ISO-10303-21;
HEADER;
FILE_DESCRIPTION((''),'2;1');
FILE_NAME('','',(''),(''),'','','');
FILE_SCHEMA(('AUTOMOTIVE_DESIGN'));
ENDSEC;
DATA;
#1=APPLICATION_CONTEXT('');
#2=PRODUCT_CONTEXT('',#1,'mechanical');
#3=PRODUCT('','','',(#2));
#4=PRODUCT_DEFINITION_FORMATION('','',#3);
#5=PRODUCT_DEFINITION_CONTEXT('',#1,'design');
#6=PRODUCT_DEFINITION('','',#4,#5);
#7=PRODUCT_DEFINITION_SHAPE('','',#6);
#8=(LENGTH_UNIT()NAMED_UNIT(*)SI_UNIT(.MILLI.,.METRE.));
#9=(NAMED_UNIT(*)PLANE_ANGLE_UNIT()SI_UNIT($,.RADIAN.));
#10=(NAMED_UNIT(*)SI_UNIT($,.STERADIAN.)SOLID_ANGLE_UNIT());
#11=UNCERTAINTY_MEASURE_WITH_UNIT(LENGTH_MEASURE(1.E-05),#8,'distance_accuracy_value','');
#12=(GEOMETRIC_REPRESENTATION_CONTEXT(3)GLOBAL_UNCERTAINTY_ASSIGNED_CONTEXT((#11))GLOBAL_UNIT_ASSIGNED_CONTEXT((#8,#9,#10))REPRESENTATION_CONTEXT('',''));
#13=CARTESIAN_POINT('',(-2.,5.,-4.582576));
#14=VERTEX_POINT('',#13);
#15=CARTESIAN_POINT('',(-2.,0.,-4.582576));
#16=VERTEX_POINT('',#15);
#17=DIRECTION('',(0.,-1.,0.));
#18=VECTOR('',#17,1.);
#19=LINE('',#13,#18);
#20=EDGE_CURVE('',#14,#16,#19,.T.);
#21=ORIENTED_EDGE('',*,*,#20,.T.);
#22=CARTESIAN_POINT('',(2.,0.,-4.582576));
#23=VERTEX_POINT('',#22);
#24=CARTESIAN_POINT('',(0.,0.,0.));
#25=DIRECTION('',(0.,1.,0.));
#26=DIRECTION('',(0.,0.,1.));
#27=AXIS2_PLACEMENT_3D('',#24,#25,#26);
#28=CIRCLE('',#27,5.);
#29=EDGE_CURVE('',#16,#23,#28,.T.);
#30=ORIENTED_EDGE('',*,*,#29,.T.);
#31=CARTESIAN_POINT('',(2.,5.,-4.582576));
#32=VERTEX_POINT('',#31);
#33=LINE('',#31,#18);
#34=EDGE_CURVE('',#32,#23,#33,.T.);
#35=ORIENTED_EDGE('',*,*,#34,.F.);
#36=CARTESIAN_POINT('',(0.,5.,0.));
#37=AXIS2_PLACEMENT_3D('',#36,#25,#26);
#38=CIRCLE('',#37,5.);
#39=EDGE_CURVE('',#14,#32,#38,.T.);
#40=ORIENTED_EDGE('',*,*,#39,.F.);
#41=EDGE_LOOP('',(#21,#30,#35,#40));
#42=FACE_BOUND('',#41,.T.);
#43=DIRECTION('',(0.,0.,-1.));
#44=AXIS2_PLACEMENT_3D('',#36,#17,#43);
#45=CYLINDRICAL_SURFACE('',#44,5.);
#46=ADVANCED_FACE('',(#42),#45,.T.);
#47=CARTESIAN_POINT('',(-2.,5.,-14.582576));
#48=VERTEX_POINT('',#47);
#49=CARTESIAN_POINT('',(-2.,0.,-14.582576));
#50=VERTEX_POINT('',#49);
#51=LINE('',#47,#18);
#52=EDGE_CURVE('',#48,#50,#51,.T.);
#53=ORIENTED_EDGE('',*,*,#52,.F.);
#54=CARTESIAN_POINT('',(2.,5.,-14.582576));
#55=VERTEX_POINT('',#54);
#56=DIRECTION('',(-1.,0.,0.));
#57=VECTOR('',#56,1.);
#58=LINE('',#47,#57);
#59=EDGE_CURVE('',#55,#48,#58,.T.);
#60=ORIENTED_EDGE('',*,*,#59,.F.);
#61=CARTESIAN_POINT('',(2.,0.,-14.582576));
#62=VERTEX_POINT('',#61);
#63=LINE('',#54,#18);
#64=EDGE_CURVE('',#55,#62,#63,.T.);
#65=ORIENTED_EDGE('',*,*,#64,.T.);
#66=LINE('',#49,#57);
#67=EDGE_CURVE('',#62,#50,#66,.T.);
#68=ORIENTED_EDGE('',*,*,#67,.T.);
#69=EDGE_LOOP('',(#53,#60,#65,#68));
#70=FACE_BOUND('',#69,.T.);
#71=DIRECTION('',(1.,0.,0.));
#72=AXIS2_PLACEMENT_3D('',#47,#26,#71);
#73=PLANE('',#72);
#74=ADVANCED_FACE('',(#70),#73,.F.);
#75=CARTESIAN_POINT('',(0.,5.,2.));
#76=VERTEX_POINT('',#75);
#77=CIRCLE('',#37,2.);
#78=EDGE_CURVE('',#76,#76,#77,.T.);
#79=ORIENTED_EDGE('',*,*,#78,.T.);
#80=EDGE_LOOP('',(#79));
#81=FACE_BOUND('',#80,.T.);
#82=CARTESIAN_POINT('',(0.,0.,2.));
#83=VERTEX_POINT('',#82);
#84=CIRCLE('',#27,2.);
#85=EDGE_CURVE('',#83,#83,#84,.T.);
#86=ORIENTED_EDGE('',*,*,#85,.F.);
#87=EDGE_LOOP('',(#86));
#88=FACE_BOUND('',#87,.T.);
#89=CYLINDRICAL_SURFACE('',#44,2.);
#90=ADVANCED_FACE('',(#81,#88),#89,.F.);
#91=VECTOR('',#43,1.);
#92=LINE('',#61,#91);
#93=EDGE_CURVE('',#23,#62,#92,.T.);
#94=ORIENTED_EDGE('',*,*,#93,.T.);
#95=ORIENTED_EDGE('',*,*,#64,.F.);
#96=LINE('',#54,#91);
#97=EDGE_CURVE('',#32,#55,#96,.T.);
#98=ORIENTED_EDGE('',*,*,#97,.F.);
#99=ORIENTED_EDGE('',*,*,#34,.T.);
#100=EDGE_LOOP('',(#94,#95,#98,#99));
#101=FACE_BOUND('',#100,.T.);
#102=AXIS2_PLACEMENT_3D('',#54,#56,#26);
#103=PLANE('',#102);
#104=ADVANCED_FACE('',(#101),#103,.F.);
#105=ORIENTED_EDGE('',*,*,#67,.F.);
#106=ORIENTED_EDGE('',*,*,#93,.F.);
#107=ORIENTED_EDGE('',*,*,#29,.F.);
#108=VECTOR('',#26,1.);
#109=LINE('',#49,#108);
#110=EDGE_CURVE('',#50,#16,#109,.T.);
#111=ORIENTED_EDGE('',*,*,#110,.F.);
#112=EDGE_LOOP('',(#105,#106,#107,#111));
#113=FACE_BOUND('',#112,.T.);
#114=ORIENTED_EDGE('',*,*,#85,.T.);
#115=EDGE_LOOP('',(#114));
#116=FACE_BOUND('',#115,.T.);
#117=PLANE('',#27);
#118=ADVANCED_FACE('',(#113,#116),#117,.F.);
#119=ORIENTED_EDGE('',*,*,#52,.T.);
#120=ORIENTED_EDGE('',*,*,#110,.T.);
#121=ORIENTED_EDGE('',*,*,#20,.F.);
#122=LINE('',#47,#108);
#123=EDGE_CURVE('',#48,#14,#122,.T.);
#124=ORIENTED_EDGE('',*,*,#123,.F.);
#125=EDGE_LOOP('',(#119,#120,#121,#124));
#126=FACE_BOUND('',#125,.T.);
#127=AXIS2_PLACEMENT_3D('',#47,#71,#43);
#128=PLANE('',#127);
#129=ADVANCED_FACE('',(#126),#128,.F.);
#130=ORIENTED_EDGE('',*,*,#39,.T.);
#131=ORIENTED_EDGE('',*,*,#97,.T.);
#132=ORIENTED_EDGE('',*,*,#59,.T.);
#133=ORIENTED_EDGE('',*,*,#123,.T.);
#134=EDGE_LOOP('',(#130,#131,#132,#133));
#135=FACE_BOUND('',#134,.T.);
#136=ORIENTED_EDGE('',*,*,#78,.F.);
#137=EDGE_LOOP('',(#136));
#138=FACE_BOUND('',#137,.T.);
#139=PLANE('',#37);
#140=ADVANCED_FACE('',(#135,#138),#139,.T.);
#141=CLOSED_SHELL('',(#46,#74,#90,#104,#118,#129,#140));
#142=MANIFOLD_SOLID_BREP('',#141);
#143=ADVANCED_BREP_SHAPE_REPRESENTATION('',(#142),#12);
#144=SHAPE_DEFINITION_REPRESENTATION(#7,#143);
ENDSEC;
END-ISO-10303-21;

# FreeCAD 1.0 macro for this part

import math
import FreeCAD as App
import Part
import Sketcher

V = App.Vector

doc = App.newDocument("Part")
body = doc.addObject("PartDesign::Body", "Body")

# Sketch on XZ plane
sketch1 = body.newObject("Sketcher::SketchObject", "Sketch")
sketch1.AttachmentSupport = (doc.getObject("XZ_Plane"), [""])
sketch1.MapMode = "FlatFace"
sketch1.addGeometry([
    Part.LineSegment(V(2, -14.582576, 0), V(-2, -14.582576, 0)),  # 0
    Part.LineSegment(V(-2, -14.582576, 0), V(-2, -4.582576, 0)),  # 1
    Part.ArcOfCircle(Part.Circle(V(0, 0, 0), V(0, 0, 1), 5), math.radians(-66.421822), math.radians(246.421822)),  # 2
    Part.LineSegment(V(2, -4.582576, 0), V(2, -14.582576, 0)),  # 3
    Part.Circle(V(0, 0, 0), V(0, 0, 1), 2),  # 4
], False)
sketch1.addConstraint([
    Sketcher.Constraint("Coincident", 0, 2, 1, 1),
    Sketcher.Constraint("Coincident", 1, 2, 2, 2),
    Sketcher.Constraint("Coincident", 2, 1, 3, 1),
    Sketcher.Constraint("Coincident", 3, 2, 0, 1),
    Sketcher.Constraint("Horizontal", 0),
    Sketcher.Constraint("Vertical", 1),
    Sketcher.Constraint("Vertical", 3),
    Sketcher.Constraint("Coincident", 2, 3, -1, 1),
    Sketcher.Constraint("Coincident", 4, 3, -1, 1),
    Sketcher.Constraint("Horizontal", 1, 2, 2, 1),
    Sketcher.Constraint("Diameter", 4, 4.0),
    Sketcher.Constraint("Radius", 2, 5.0),
    Sketcher.Constraint("DistanceX", 0, 2, 0, 1, 4.0),
    Sketcher.Constraint("DistanceY", 1, 1, 1, 2, 10.0),
])
pad1 = body.newObject("PartDesign::Pad", "Pad")
pad1.Profile = sketch1
pad1.Length = 5
pad1.Reversed = True

doc.recompute()
